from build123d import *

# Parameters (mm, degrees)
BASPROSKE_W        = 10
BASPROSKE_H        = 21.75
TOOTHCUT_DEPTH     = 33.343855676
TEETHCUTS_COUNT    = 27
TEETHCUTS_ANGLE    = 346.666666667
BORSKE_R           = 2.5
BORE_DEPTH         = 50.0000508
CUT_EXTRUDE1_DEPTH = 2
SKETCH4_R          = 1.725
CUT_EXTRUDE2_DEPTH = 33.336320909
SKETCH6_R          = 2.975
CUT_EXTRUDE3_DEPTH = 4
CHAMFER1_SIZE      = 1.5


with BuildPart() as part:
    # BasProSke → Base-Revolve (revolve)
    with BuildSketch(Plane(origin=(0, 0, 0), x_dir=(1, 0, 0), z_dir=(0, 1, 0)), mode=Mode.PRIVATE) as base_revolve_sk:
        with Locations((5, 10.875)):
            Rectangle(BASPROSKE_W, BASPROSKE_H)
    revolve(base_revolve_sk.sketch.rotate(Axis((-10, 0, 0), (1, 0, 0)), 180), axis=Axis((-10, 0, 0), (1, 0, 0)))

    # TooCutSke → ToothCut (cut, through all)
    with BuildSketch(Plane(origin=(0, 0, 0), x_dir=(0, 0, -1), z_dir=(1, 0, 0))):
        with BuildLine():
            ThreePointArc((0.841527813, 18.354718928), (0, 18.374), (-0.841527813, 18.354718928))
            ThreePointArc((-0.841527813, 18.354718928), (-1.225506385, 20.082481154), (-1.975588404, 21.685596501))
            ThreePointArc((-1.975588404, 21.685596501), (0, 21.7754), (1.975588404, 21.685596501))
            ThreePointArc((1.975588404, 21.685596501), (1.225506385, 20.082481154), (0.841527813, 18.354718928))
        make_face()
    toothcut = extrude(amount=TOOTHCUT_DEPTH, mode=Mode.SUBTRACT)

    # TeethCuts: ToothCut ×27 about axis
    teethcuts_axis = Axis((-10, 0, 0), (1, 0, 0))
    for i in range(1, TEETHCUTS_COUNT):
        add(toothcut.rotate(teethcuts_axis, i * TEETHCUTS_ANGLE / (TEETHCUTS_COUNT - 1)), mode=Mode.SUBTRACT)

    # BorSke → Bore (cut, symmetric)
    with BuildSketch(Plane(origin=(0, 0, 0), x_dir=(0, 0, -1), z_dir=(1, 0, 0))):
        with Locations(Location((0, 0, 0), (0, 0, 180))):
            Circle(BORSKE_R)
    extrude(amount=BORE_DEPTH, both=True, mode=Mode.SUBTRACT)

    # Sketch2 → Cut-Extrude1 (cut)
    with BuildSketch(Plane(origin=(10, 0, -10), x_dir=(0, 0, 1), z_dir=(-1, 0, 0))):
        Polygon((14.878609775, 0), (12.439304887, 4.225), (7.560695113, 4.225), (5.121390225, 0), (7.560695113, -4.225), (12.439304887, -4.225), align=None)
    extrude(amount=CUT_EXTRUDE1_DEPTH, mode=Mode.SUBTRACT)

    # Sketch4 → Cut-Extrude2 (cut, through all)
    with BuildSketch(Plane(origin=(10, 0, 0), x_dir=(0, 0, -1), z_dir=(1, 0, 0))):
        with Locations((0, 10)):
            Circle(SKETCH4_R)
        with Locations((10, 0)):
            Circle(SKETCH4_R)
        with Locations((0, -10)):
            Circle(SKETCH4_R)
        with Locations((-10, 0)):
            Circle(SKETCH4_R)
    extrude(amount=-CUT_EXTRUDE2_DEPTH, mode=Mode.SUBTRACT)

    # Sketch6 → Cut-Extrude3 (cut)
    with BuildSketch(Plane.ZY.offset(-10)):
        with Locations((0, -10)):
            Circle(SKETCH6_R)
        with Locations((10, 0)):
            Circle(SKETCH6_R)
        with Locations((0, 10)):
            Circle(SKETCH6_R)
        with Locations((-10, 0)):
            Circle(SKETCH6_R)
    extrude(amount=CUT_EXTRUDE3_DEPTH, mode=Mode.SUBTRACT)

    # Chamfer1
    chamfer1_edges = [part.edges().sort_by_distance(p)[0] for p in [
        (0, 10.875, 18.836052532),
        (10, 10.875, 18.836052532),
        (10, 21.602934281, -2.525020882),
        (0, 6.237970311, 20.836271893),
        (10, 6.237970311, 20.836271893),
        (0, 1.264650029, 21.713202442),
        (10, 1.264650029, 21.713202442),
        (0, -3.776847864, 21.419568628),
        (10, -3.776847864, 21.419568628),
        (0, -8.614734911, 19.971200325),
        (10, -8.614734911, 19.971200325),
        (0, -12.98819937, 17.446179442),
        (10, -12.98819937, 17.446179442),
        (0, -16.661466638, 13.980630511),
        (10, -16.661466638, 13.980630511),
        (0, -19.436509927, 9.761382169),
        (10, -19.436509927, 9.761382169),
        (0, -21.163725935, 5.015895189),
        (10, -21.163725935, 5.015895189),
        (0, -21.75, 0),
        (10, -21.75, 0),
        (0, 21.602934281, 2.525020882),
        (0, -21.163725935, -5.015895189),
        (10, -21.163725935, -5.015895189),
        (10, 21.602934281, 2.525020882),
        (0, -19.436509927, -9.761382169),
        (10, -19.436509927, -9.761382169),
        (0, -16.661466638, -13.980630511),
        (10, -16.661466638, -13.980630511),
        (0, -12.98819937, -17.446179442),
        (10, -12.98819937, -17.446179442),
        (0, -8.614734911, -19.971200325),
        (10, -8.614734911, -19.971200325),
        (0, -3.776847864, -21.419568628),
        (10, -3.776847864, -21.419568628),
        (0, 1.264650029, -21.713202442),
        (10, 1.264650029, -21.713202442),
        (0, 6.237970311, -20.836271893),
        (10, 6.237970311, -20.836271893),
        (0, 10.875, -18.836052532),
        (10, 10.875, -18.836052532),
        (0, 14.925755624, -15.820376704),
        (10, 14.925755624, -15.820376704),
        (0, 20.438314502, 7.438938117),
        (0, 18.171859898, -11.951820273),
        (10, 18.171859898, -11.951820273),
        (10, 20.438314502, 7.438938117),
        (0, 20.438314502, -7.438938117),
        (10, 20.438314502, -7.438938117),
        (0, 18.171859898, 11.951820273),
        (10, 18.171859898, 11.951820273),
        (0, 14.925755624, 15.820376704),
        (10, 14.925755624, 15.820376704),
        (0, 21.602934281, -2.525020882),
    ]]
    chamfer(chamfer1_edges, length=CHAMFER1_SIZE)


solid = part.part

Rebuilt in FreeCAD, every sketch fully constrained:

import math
import FreeCAD as App
import Part
import Sketcher
from FreeCAD import Vector
Q = App.Units.Quantity


def edges_at(feature, points):
    """Names of the edges that pass closest to the given points."""
    edges = feature.Shape.Edges
    near = lambda p: min(range(len(edges)), key=lambda i: edges[i].distToShape(Part.Vertex(*p))[0])
    return sorted({f"Edge{near(p) + 1}" for p in points})

doc = App.newDocument("Part")
body = doc.addObject("PartDesign::Body", "Body")

# Sketch on XZ plane
sketch1 = body.newObject("Sketcher::SketchObject", "Sketch")
sketch1.AttachmentSupport = (doc.getObject("XZ_Plane"), [""])
sketch1.MapMode = "FlatFace"
sketch1.addGeometry(Part.LineSegment(Vector(0, -21.75, 0), Vector(0, 0, 0)), False)
sketch1.addGeometry(Part.LineSegment(Vector(0, 0, 0), Vector(10, 0, 0)), False)
sketch1.addGeometry(Part.LineSegment(Vector(10, 0, 0), Vector(10, -21.75, 0)), False)
sketch1.addGeometry(Part.LineSegment(Vector(10, -21.75, 0), Vector(0, -21.75, 0)), False)
sketch1.addConstraint(Sketcher.Constraint("Coincident", 0, 2, 1, 1))
sketch1.addConstraint(Sketcher.Constraint("Coincident", 1, 2, 2, 1))
sketch1.addConstraint(Sketcher.Constraint("Coincident", 2, 2, 3, 1))
sketch1.addConstraint(Sketcher.Constraint("Coincident", 3, 2, 0, 1))
sketch1.addConstraint(Sketcher.Constraint("Vertical", 0))
sketch1.addConstraint(Sketcher.Constraint("Horizontal", 1))
sketch1.addConstraint(Sketcher.Constraint("Vertical", 2))
sketch1.addConstraint(Sketcher.Constraint("Horizontal", 3))
sketch1.addConstraint(Sketcher.Constraint("Coincident", 0, 2, -1, 1))
sketch1.addConstraint(Sketcher.Constraint("DistanceX", 1, 1, 1, 2, Q("10 mm")))
sketch1.addConstraint(Sketcher.Constraint("DistanceY", 0, 1, 0, 2, Q("21.75 mm")))
revolution = body.newObject("PartDesign::Revolution", "Revolution")
revolution.Profile = sketch1
revolution.ReferenceAxis = (sketch1, ["H_Axis"])
revolution.Angle = 360

# Sketch on YZ plane
sketch2 = body.newObject("Sketcher::SketchObject", "Sketch001")
sketch2.AttachmentSupport = (doc.getObject("YZ_Plane"), [""])
sketch2.MapMode = "FlatFace"
sketch2.addGeometry(Part.ArcOfCircle(Part.Circle(Vector(0, 0, 0), Vector(0, 0, 1), 18.374), math.radians(-2.625061), math.radians(2.625061)), False)
sketch2.addGeometry(Part.ArcOfCircle(Part.Circle(Vector(17.471846, -8.893269, 0), Vector(0, 0, 1), 8.1), math.radians(58.653248), math.radians(83.742517)), False)
sketch2.addGeometry(Part.ArcOfCircle(Part.Circle(Vector(0, 0, 0), Vector(0, 0, 1), 21.7754), math.radians(-5.205357), math.radians(5.205357)), False)
sketch2.addGeometry(Part.ArcOfCircle(Part.Circle(Vector(17.471846, 8.893269, 0), Vector(0, 0, 1), 8.1), math.radians(-83.742517), math.radians(-58.653248)), False)
sketch2.addConstraint(Sketcher.Constraint("Coincident", 0, 1, 1, 2))
sketch2.addConstraint(Sketcher.Constraint("Coincident", 1, 1, 2, 1))
sketch2.addConstraint(Sketcher.Constraint("Coincident", 2, 2, 3, 2))
sketch2.addConstraint(Sketcher.Constraint("Coincident", 3, 1, 0, 2))
sketch2.addConstraint(Sketcher.Constraint("Coincident", 0, 3, -1, 1))
sketch2.addConstraint(Sketcher.Constraint("Coincident", 2, 3, -1, 1))
sketch2.addConstraint(Sketcher.Constraint("Equal", 1, 3))
sketch2.addConstraint(Sketcher.Constraint("Symmetric", 1, 3, 3, 3, -1))
sketch2.addConstraint(Sketcher.Constraint("Radius", 1, Q("8.1 mm")))
sketch2.addConstraint(Sketcher.Constraint("Radius", 0, Q("18.374 mm")))
sketch2.addConstraint(Sketcher.Constraint("Radius", 2, Q("21.7754 mm")))
sketch2.addConstraint(Sketcher.Constraint("DistanceY", 1, 3, -1, 1, Q("8.893269 mm")))
sketch2.addConstraint(Sketcher.Constraint("DistanceX", -1, 1, 0, 1, Q("18.354719 mm")))
pocket1 = body.newObject("PartDesign::Pocket", "Pocket")
pocket1.Profile = sketch2
pocket1.Type = "ThroughAll"
pocket1.Reversed = True
doc.recompute()

polarpattern = body.newObject("PartDesign::PolarPattern", "PolarPattern")
polarpattern.Originals = [pocket1]
polarpattern.Axis = (doc.getObject("X_Axis"), [""])
polarpattern.Angle = 360
polarpattern.Occurrences = 27
body.Tip = polarpattern

# Sketch on YZ plane
sketch3 = body.newObject("Sketcher::SketchObject", "Sketch002")
sketch3.AttachmentSupport = (doc.getObject("YZ_Plane"), [""])
sketch3.MapMode = "FlatFace"
sketch3.addGeometry(Part.Circle(Vector(0, 0, 0), Vector(0, 0, 1), 2.5), False)
sketch3.addConstraint(Sketcher.Constraint("Coincident", 0, 3, -1, 1))
sketch3.addConstraint(Sketcher.Constraint("Diameter", 0, Q("5 mm")))
pocket2 = body.newObject("PartDesign::Pocket", "Pocket001")
pocket2.Profile = sketch3
pocket2.Length = 100.000102
pocket2.Midplane = True

# Sketch on YZ plane
sketch4 = body.newObject("Sketcher::SketchObject", "Sketch003")
sketch4.AttachmentSupport = (doc.getObject("YZ_Plane"), [""])
sketch4.MapMode = "FlatFace"
sketch4.AttachmentOffset = App.Placement(Vector(0, 0, 10), App.Rotation())
sketch4.addGeometry(Part.LineSegment(Vector(0, 4.87861, 0), Vector(4.225, 2.439305, 0)), False)
sketch4.addGeometry(Part.LineSegment(Vector(4.225, 2.439305, 0), Vector(4.225, -2.439305, 0)), False)
sketch4.addGeometry(Part.LineSegment(Vector(4.225, -2.439305, 0), Vector(0, -4.87861, 0)), False)
sketch4.addGeometry(Part.LineSegment(Vector(0, -4.87861, 0), Vector(-4.225, -2.439305, 0)), False)
sketch4.addGeometry(Part.LineSegment(Vector(-4.225, -2.439305, 0), Vector(-4.225, 2.439305, 0)), False)
sketch4.addGeometry(Part.LineSegment(Vector(-4.225, 2.439305, 0), Vector(0, 4.87861, 0)), False)
sketch4.addConstraint(Sketcher.Constraint("Coincident", 0, 2, 1, 1))
sketch4.addConstraint(Sketcher.Constraint("Coincident", 1, 2, 2, 1))
sketch4.addConstraint(Sketcher.Constraint("Coincident", 2, 2, 3, 1))
sketch4.addConstraint(Sketcher.Constraint("Coincident", 3, 2, 4, 1))
sketch4.addConstraint(Sketcher.Constraint("Coincident", 4, 2, 5, 1))
sketch4.addConstraint(Sketcher.Constraint("Coincident", 5, 2, 0, 1))
sketch4.addConstraint(Sketcher.Constraint("Vertical", 1))
sketch4.addConstraint(Sketcher.Constraint("Vertical", 4))
sketch4.addConstraint(Sketcher.Constraint("Symmetric", 0, 2, 3, 2, -1, 1))
sketch4.addConstraint(Sketcher.Constraint("Symmetric", 2, 2, 5, 2, -1, 1))
sketch4.addConstraint(Sketcher.Constraint("PointOnObject", 2, 2, -2))
sketch4.addConstraint(Sketcher.Constraint("Parallel", 2, 5))
sketch4.addConstraint(Sketcher.Constraint("Horizontal", 1, 2, 3, 2))
sketch4.addConstraint(Sketcher.Constraint("Angle", 0, Q("-30 deg")))
sketch4.addConstraint(Sketcher.Constraint("DistanceX", 3, 2, 1, 2, Q("8.45 mm")))
sketch4.addConstraint(Sketcher.Constraint("DistanceY", 1, 2, 1, 1, Q("4.87861 mm")))
pocket3 = body.newObject("PartDesign::Pocket", "Pocket002")
pocket3.Profile = sketch4
pocket3.Length = 2

# Sketch on YZ plane
sketch5 = body.newObject("Sketcher::SketchObject", "Sketch004")
sketch5.AttachmentSupport = (doc.getObject("YZ_Plane"), [""])
sketch5.MapMode = "FlatFace"
sketch5.AttachmentOffset = App.Placement(Vector(0, 0, 10), App.Rotation())
sketch5.addGeometry(Part.Circle(Vector(10, 0, 0), Vector(0, 0, 1), 1.725), False)
sketch5.addGeometry(Part.Circle(Vector(0, -10, 0), Vector(0, 0, 1), 1.725), False)
sketch5.addGeometry(Part.Circle(Vector(-10, 0, 0), Vector(0, 0, 1), 1.725), False)
sketch5.addGeometry(Part.Circle(Vector(0, 10, 0), Vector(0, 0, 1), 1.725), False)
sketch5.addConstraint(Sketcher.Constraint("Equal", 0, 1))
sketch5.addConstraint(Sketcher.Constraint("Equal", 1, 2))
sketch5.addConstraint(Sketcher.Constraint("Equal", 2, 3))
sketch5.addConstraint(Sketcher.Constraint("Symmetric", 0, 3, 2, 3, -1, 1))
sketch5.addConstraint(Sketcher.Constraint("Symmetric", 1, 3, 3, 3, -1, 1))
sketch5.addConstraint(Sketcher.Constraint("PointOnObject", 0, 3, -1))
sketch5.addConstraint(Sketcher.Constraint("PointOnObject", 1, 3, -2))
sketch5.addConstraint(Sketcher.Constraint("Diameter", 0, Q("3.45 mm")))
sketch5.addConstraint(Sketcher.Constraint("DistanceX", -1, 1, 0, 3, Q("10 mm")))
sketch5.addConstraint(Sketcher.Constraint("DistanceY", 1, 3, -1, 1, Q("10 mm")))
pocket4 = body.newObject("PartDesign::Pocket", "Pocket003")
pocket4.Profile = sketch5
pocket4.Type = "ThroughAll"

# Sketch on YZ plane
sketch6 = body.newObject("Sketcher::SketchObject", "Sketch005")
sketch6.AttachmentSupport = (doc.getObject("YZ_Plane"), [""])
sketch6.MapMode = "FlatFace"
sketch6.AttachmentOffset = App.Placement(Vector(0, 0, 10), App.Rotation())
sketch6.addGeometry(Part.Circle(Vector(-10, 0, 0), Vector(0, 0, 1), 2.975), False)
sketch6.addGeometry(Part.Circle(Vector(0, 10, 0), Vector(0, 0, 1), 2.975), False)
sketch6.addGeometry(Part.Circle(Vector(10, 0, 0), Vector(0, 0, 1), 2.975), False)
sketch6.addGeometry(Part.Circle(Vector(0, -10, 0), Vector(0, 0, 1), 2.975), False)
sketch6.addConstraint(Sketcher.Constraint("Equal", 0, 1))
sketch6.addConstraint(Sketcher.Constraint("Equal", 1, 2))
sketch6.addConstraint(Sketcher.Constraint("Equal", 2, 3))
sketch6.addConstraint(Sketcher.Constraint("Symmetric", 0, 3, 2, 3, -1, 1))
sketch6.addConstraint(Sketcher.Constraint("Symmetric", 1, 3, 3, 3, -1, 1))
sketch6.addConstraint(Sketcher.Constraint("PointOnObject", 0, 3, -1))
sketch6.addConstraint(Sketcher.Constraint("PointOnObject", 1, 3, -2))
sketch6.addConstraint(Sketcher.Constraint("Diameter", 0, Q("5.95 mm")))
sketch6.addConstraint(Sketcher.Constraint("DistanceX", 0, 3, -1, 1, Q("10 mm")))
sketch6.addConstraint(Sketcher.Constraint("DistanceY", -1, 1, 1, 3, Q("10 mm")))
pocket5 = body.newObject("PartDesign::Pocket", "Pocket004")
pocket5.Profile = sketch6
pocket5.Length = 4
doc.recompute()

chamfer = body.newObject("PartDesign::Chamfer", "Chamfer")
chamfer.Base = (pocket5, edges_at(pocket5, [
    (0, 10.875, 18.836),
    (10, 10.875, 18.836),
    (10, 21.603, -2.525),
    (0, 6.238, 20.836),
    (10, 6.238, 20.836),
    (0, 1.265, 21.713),
    (10, 1.265, 21.713),
    (0, -3.777, 21.42),
    (10, -3.777, 21.42),
    (0, -8.615, 19.971),
    (10, -8.615, 19.971),
    (0, -12.988, 17.446),
    (10, -12.988, 17.446),
    (0, -16.661, 13.981),
    (10, -16.661, 13.981),
    (0, -19.437, 9.761),
    (10, -19.437, 9.761),
    (0, -21.164, 5.016),
    (10, -21.164, 5.016),
    (0, -21.75, 0),
    (10, -21.75, 0),
    (0, 21.603, 2.525),
    (0, -21.164, -5.016),
    (10, -21.164, -5.016),
    (10, 21.603, 2.525),
    (0, -19.437, -9.761),
    (10, -19.437, -9.761),
    (0, -16.661, -13.981),
    (10, -16.661, -13.981),
    (0, -12.988, -17.446),
    (10, -12.988, -17.446),
    (0, -8.615, -19.971),
    (10, -8.615, -19.971),
    (0, -3.777, -21.42),
    (10, -3.777, -21.42),
    (0, 1.265, -21.713),
    (10, 1.265, -21.713),
    (0, 6.238, -20.836),
    (10, 6.238, -20.836),
    (0, 10.875, -18.836),
    (10, 10.875, -18.836),
    (0, 14.926, -15.82),
    (10, 14.926, -15.82),
    (0, 20.438, 7.439),
    (0, 18.172, -11.952),
    (10, 18.172, -11.952),
    (10, 20.438, 7.439),
    (0, 20.438, -7.439),
    (10, 20.438, -7.439),
    (0, 18.172, 11.952),
    (10, 18.172, 11.952),
    (0, 14.926, 15.82),
    (10, 14.926, 15.82),
    (0, 21.603, -2.525),
]))
chamfer.Size = 1.5

doc.recompute()
